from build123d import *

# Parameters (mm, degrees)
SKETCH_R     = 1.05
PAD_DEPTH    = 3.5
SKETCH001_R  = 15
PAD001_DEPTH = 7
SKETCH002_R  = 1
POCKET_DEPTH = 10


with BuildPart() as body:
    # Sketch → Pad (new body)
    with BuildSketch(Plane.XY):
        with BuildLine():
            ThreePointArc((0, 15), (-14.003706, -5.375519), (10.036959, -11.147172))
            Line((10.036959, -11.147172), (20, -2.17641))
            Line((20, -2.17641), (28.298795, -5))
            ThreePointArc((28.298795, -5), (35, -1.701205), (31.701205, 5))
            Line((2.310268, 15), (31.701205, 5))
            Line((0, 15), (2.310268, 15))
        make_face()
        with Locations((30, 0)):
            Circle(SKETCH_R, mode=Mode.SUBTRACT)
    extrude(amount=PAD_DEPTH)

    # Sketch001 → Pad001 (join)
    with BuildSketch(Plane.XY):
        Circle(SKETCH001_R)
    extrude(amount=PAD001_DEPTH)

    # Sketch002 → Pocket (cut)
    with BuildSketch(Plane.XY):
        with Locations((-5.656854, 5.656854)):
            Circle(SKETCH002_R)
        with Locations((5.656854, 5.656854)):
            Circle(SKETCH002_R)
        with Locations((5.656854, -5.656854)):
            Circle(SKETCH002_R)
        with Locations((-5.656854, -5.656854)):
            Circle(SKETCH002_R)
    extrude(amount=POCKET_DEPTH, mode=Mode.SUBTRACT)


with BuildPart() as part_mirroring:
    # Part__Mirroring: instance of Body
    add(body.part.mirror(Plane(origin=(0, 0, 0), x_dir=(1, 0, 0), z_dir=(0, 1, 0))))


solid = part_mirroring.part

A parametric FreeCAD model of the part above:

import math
import FreeCAD as App
import Part
import Sketcher

V = App.Vector
Q = App.Units.Quantity

doc = App.newDocument("Part")
body = doc.addObject("PartDesign::Body", "Body")

# Sketch on XY plane
sketch1 = body.newObject("Sketcher::SketchObject", "Sketch")
sketch1.AttachmentSupport = (doc.getObject("XY_Plane"), [""])
sketch1.MapMode = "FlatFace"
sketch1.addGeometry([
    Part.ArcOfCircle(Part.Circle(V(0, 0, 0), V(0, 0, 1), 15), math.radians(90), math.radians(312)),  # 0
    Part.LineSegment(V(10.036959, -11.147172, 0), V(20, -2.17641, 0)),  # 1
    Part.LineSegment(V(20, -2.17641, 0), V(28.298795, -5, 0)),  # 2
    Part.ArcOfCircle(Part.Circle(V(30, 0, 0), V(0, 0, 1), 5.281486), math.radians(-108.79041), math.radians(71.20959)),  # 3
    Part.LineSegment(V(31.701205, 5, 0), V(2.310268, 15, 0)),  # 4
    Part.LineSegment(V(2.310268, 15, 0), V(0, 15, 0)),  # 5
    Part.Circle(V(30, 0, 0), V(0, 0, 1), 1.05),  # 6
], False)
sketch1.addConstraint([
    Sketcher.Constraint("Tangent", 0, 2, 1, 1),
    Sketcher.Constraint("Coincident", 1, 2, 2, 1),
    Sketcher.Constraint("Tangent", 2, 2, 3, 1),
    Sketcher.Constraint("Tangent", 3, 2, 4, 1),
    Sketcher.Constraint("Coincident", 4, 2, 5, 1),
    Sketcher.Constraint("Tangent", 5, 2, 0, 1),
    Sketcher.Constraint("Horizontal", 5),
    Sketcher.Constraint("Coincident", 0, 3, -1, 1),
    Sketcher.Constraint("Coincident", 6, 3, 3, 3),
    Sketcher.Constraint("PointOnObject", 3, 3, -1),
    Sketcher.Constraint("Parallel", 2, 4),
    Sketcher.Constraint("Radius", 0, Q("15 mm")),
    Sketcher.Constraint("Diameter", 6, Q("2.1 mm")),
    Sketcher.Constraint("Angle", 1, Q("41.999999 deg")),
    Sketcher.Constraint("DistanceX", -1, 1, 3, 3, Q("30 mm")),
    Sketcher.Constraint("DistanceX", -1, 1, 1, 2, Q("20 mm")),
    Sketcher.Constraint("DistanceY", 2, 2, -1, 1, Q("5 mm")),
])
pad1 = body.newObject("PartDesign::Pad", "Pad")
pad1.Profile = sketch1
pad1.Length = 3.5

# Sketch on XY plane
sketch2 = body.newObject("Sketcher::SketchObject", "Sketch001")
sketch2.AttachmentSupport = (doc.getObject("XY_Plane"), [""])
sketch2.MapMode = "FlatFace"
sketch2.addGeometry(Part.Circle(V(0, 0, 0), V(0, 0, 1), 15), False)
sketch2.addConstraint([
    Sketcher.Constraint("Coincident", 0, 3, -1, 1),
    Sketcher.Constraint("Diameter", 0, Q("30 mm")),
])
pad2 = body.newObject("PartDesign::Pad", "Pad001")
pad2.Profile = sketch2
pad2.Length = 7

# Sketch on XY plane
sketch3 = body.newObject("Sketcher::SketchObject", "Sketch002")
sketch3.AttachmentSupport = (doc.getObject("XY_Plane"), [""])
sketch3.MapMode = "FlatFace"
sketch3.addGeometry([
    Part.Circle(V(-5.656854, 5.656854, 0), V(0, 0, 1), 1),
    Part.Circle(V(5.656854, 5.656854, 0), V(0, 0, 1), 1),
    Part.Circle(V(5.656854, -5.656854, 0), V(0, 0, 1), 1),
    Part.Circle(V(-5.656854, -5.656854, 0), V(0, 0, 1), 1),
], False)
sketch3.addConstraint([
    Sketcher.Constraint("Equal", 0, 1),
    Sketcher.Constraint("Equal", 1, 2),
    Sketcher.Constraint("Equal", 2, 3),
    Sketcher.Constraint("Symmetric", 0, 3, 2, 3, -1, 1),
    Sketcher.Constraint("Symmetric", 1, 3, 3, 3, -1, 1),
    Sketcher.Constraint("Symmetric", 0, 3, 1, 3, -2),
    Sketcher.Constraint("Diameter", 0, Q("2 mm")),
    Sketcher.Constraint("DistanceX", 0, 3, -1, 1, Q("5.656854 mm")),
    Sketcher.Constraint("DistanceY", -1, 1, 0, 3, Q("5.656854 mm")),
])
pocket1 = body.newObject("PartDesign::Pocket", "Pocket")
pocket1.Profile = sketch3
pocket1.Length = 10
pocket1.Reversed = True
body2 = doc.addObject("PartDesign::Body", "Body001")
doc.recompute()

mirroring = doc.addObject("Part::Mirroring", "Mirroring")
mirroring.Source = body
mirroring.Base = V(0, 0, 0)
mirroring.Normal = V(0, 1, 0)
body2.BaseFeature = mirroring
doc.recompute()
body.Visibility = False
mirroring.Visibility = False

doc.recompute()
